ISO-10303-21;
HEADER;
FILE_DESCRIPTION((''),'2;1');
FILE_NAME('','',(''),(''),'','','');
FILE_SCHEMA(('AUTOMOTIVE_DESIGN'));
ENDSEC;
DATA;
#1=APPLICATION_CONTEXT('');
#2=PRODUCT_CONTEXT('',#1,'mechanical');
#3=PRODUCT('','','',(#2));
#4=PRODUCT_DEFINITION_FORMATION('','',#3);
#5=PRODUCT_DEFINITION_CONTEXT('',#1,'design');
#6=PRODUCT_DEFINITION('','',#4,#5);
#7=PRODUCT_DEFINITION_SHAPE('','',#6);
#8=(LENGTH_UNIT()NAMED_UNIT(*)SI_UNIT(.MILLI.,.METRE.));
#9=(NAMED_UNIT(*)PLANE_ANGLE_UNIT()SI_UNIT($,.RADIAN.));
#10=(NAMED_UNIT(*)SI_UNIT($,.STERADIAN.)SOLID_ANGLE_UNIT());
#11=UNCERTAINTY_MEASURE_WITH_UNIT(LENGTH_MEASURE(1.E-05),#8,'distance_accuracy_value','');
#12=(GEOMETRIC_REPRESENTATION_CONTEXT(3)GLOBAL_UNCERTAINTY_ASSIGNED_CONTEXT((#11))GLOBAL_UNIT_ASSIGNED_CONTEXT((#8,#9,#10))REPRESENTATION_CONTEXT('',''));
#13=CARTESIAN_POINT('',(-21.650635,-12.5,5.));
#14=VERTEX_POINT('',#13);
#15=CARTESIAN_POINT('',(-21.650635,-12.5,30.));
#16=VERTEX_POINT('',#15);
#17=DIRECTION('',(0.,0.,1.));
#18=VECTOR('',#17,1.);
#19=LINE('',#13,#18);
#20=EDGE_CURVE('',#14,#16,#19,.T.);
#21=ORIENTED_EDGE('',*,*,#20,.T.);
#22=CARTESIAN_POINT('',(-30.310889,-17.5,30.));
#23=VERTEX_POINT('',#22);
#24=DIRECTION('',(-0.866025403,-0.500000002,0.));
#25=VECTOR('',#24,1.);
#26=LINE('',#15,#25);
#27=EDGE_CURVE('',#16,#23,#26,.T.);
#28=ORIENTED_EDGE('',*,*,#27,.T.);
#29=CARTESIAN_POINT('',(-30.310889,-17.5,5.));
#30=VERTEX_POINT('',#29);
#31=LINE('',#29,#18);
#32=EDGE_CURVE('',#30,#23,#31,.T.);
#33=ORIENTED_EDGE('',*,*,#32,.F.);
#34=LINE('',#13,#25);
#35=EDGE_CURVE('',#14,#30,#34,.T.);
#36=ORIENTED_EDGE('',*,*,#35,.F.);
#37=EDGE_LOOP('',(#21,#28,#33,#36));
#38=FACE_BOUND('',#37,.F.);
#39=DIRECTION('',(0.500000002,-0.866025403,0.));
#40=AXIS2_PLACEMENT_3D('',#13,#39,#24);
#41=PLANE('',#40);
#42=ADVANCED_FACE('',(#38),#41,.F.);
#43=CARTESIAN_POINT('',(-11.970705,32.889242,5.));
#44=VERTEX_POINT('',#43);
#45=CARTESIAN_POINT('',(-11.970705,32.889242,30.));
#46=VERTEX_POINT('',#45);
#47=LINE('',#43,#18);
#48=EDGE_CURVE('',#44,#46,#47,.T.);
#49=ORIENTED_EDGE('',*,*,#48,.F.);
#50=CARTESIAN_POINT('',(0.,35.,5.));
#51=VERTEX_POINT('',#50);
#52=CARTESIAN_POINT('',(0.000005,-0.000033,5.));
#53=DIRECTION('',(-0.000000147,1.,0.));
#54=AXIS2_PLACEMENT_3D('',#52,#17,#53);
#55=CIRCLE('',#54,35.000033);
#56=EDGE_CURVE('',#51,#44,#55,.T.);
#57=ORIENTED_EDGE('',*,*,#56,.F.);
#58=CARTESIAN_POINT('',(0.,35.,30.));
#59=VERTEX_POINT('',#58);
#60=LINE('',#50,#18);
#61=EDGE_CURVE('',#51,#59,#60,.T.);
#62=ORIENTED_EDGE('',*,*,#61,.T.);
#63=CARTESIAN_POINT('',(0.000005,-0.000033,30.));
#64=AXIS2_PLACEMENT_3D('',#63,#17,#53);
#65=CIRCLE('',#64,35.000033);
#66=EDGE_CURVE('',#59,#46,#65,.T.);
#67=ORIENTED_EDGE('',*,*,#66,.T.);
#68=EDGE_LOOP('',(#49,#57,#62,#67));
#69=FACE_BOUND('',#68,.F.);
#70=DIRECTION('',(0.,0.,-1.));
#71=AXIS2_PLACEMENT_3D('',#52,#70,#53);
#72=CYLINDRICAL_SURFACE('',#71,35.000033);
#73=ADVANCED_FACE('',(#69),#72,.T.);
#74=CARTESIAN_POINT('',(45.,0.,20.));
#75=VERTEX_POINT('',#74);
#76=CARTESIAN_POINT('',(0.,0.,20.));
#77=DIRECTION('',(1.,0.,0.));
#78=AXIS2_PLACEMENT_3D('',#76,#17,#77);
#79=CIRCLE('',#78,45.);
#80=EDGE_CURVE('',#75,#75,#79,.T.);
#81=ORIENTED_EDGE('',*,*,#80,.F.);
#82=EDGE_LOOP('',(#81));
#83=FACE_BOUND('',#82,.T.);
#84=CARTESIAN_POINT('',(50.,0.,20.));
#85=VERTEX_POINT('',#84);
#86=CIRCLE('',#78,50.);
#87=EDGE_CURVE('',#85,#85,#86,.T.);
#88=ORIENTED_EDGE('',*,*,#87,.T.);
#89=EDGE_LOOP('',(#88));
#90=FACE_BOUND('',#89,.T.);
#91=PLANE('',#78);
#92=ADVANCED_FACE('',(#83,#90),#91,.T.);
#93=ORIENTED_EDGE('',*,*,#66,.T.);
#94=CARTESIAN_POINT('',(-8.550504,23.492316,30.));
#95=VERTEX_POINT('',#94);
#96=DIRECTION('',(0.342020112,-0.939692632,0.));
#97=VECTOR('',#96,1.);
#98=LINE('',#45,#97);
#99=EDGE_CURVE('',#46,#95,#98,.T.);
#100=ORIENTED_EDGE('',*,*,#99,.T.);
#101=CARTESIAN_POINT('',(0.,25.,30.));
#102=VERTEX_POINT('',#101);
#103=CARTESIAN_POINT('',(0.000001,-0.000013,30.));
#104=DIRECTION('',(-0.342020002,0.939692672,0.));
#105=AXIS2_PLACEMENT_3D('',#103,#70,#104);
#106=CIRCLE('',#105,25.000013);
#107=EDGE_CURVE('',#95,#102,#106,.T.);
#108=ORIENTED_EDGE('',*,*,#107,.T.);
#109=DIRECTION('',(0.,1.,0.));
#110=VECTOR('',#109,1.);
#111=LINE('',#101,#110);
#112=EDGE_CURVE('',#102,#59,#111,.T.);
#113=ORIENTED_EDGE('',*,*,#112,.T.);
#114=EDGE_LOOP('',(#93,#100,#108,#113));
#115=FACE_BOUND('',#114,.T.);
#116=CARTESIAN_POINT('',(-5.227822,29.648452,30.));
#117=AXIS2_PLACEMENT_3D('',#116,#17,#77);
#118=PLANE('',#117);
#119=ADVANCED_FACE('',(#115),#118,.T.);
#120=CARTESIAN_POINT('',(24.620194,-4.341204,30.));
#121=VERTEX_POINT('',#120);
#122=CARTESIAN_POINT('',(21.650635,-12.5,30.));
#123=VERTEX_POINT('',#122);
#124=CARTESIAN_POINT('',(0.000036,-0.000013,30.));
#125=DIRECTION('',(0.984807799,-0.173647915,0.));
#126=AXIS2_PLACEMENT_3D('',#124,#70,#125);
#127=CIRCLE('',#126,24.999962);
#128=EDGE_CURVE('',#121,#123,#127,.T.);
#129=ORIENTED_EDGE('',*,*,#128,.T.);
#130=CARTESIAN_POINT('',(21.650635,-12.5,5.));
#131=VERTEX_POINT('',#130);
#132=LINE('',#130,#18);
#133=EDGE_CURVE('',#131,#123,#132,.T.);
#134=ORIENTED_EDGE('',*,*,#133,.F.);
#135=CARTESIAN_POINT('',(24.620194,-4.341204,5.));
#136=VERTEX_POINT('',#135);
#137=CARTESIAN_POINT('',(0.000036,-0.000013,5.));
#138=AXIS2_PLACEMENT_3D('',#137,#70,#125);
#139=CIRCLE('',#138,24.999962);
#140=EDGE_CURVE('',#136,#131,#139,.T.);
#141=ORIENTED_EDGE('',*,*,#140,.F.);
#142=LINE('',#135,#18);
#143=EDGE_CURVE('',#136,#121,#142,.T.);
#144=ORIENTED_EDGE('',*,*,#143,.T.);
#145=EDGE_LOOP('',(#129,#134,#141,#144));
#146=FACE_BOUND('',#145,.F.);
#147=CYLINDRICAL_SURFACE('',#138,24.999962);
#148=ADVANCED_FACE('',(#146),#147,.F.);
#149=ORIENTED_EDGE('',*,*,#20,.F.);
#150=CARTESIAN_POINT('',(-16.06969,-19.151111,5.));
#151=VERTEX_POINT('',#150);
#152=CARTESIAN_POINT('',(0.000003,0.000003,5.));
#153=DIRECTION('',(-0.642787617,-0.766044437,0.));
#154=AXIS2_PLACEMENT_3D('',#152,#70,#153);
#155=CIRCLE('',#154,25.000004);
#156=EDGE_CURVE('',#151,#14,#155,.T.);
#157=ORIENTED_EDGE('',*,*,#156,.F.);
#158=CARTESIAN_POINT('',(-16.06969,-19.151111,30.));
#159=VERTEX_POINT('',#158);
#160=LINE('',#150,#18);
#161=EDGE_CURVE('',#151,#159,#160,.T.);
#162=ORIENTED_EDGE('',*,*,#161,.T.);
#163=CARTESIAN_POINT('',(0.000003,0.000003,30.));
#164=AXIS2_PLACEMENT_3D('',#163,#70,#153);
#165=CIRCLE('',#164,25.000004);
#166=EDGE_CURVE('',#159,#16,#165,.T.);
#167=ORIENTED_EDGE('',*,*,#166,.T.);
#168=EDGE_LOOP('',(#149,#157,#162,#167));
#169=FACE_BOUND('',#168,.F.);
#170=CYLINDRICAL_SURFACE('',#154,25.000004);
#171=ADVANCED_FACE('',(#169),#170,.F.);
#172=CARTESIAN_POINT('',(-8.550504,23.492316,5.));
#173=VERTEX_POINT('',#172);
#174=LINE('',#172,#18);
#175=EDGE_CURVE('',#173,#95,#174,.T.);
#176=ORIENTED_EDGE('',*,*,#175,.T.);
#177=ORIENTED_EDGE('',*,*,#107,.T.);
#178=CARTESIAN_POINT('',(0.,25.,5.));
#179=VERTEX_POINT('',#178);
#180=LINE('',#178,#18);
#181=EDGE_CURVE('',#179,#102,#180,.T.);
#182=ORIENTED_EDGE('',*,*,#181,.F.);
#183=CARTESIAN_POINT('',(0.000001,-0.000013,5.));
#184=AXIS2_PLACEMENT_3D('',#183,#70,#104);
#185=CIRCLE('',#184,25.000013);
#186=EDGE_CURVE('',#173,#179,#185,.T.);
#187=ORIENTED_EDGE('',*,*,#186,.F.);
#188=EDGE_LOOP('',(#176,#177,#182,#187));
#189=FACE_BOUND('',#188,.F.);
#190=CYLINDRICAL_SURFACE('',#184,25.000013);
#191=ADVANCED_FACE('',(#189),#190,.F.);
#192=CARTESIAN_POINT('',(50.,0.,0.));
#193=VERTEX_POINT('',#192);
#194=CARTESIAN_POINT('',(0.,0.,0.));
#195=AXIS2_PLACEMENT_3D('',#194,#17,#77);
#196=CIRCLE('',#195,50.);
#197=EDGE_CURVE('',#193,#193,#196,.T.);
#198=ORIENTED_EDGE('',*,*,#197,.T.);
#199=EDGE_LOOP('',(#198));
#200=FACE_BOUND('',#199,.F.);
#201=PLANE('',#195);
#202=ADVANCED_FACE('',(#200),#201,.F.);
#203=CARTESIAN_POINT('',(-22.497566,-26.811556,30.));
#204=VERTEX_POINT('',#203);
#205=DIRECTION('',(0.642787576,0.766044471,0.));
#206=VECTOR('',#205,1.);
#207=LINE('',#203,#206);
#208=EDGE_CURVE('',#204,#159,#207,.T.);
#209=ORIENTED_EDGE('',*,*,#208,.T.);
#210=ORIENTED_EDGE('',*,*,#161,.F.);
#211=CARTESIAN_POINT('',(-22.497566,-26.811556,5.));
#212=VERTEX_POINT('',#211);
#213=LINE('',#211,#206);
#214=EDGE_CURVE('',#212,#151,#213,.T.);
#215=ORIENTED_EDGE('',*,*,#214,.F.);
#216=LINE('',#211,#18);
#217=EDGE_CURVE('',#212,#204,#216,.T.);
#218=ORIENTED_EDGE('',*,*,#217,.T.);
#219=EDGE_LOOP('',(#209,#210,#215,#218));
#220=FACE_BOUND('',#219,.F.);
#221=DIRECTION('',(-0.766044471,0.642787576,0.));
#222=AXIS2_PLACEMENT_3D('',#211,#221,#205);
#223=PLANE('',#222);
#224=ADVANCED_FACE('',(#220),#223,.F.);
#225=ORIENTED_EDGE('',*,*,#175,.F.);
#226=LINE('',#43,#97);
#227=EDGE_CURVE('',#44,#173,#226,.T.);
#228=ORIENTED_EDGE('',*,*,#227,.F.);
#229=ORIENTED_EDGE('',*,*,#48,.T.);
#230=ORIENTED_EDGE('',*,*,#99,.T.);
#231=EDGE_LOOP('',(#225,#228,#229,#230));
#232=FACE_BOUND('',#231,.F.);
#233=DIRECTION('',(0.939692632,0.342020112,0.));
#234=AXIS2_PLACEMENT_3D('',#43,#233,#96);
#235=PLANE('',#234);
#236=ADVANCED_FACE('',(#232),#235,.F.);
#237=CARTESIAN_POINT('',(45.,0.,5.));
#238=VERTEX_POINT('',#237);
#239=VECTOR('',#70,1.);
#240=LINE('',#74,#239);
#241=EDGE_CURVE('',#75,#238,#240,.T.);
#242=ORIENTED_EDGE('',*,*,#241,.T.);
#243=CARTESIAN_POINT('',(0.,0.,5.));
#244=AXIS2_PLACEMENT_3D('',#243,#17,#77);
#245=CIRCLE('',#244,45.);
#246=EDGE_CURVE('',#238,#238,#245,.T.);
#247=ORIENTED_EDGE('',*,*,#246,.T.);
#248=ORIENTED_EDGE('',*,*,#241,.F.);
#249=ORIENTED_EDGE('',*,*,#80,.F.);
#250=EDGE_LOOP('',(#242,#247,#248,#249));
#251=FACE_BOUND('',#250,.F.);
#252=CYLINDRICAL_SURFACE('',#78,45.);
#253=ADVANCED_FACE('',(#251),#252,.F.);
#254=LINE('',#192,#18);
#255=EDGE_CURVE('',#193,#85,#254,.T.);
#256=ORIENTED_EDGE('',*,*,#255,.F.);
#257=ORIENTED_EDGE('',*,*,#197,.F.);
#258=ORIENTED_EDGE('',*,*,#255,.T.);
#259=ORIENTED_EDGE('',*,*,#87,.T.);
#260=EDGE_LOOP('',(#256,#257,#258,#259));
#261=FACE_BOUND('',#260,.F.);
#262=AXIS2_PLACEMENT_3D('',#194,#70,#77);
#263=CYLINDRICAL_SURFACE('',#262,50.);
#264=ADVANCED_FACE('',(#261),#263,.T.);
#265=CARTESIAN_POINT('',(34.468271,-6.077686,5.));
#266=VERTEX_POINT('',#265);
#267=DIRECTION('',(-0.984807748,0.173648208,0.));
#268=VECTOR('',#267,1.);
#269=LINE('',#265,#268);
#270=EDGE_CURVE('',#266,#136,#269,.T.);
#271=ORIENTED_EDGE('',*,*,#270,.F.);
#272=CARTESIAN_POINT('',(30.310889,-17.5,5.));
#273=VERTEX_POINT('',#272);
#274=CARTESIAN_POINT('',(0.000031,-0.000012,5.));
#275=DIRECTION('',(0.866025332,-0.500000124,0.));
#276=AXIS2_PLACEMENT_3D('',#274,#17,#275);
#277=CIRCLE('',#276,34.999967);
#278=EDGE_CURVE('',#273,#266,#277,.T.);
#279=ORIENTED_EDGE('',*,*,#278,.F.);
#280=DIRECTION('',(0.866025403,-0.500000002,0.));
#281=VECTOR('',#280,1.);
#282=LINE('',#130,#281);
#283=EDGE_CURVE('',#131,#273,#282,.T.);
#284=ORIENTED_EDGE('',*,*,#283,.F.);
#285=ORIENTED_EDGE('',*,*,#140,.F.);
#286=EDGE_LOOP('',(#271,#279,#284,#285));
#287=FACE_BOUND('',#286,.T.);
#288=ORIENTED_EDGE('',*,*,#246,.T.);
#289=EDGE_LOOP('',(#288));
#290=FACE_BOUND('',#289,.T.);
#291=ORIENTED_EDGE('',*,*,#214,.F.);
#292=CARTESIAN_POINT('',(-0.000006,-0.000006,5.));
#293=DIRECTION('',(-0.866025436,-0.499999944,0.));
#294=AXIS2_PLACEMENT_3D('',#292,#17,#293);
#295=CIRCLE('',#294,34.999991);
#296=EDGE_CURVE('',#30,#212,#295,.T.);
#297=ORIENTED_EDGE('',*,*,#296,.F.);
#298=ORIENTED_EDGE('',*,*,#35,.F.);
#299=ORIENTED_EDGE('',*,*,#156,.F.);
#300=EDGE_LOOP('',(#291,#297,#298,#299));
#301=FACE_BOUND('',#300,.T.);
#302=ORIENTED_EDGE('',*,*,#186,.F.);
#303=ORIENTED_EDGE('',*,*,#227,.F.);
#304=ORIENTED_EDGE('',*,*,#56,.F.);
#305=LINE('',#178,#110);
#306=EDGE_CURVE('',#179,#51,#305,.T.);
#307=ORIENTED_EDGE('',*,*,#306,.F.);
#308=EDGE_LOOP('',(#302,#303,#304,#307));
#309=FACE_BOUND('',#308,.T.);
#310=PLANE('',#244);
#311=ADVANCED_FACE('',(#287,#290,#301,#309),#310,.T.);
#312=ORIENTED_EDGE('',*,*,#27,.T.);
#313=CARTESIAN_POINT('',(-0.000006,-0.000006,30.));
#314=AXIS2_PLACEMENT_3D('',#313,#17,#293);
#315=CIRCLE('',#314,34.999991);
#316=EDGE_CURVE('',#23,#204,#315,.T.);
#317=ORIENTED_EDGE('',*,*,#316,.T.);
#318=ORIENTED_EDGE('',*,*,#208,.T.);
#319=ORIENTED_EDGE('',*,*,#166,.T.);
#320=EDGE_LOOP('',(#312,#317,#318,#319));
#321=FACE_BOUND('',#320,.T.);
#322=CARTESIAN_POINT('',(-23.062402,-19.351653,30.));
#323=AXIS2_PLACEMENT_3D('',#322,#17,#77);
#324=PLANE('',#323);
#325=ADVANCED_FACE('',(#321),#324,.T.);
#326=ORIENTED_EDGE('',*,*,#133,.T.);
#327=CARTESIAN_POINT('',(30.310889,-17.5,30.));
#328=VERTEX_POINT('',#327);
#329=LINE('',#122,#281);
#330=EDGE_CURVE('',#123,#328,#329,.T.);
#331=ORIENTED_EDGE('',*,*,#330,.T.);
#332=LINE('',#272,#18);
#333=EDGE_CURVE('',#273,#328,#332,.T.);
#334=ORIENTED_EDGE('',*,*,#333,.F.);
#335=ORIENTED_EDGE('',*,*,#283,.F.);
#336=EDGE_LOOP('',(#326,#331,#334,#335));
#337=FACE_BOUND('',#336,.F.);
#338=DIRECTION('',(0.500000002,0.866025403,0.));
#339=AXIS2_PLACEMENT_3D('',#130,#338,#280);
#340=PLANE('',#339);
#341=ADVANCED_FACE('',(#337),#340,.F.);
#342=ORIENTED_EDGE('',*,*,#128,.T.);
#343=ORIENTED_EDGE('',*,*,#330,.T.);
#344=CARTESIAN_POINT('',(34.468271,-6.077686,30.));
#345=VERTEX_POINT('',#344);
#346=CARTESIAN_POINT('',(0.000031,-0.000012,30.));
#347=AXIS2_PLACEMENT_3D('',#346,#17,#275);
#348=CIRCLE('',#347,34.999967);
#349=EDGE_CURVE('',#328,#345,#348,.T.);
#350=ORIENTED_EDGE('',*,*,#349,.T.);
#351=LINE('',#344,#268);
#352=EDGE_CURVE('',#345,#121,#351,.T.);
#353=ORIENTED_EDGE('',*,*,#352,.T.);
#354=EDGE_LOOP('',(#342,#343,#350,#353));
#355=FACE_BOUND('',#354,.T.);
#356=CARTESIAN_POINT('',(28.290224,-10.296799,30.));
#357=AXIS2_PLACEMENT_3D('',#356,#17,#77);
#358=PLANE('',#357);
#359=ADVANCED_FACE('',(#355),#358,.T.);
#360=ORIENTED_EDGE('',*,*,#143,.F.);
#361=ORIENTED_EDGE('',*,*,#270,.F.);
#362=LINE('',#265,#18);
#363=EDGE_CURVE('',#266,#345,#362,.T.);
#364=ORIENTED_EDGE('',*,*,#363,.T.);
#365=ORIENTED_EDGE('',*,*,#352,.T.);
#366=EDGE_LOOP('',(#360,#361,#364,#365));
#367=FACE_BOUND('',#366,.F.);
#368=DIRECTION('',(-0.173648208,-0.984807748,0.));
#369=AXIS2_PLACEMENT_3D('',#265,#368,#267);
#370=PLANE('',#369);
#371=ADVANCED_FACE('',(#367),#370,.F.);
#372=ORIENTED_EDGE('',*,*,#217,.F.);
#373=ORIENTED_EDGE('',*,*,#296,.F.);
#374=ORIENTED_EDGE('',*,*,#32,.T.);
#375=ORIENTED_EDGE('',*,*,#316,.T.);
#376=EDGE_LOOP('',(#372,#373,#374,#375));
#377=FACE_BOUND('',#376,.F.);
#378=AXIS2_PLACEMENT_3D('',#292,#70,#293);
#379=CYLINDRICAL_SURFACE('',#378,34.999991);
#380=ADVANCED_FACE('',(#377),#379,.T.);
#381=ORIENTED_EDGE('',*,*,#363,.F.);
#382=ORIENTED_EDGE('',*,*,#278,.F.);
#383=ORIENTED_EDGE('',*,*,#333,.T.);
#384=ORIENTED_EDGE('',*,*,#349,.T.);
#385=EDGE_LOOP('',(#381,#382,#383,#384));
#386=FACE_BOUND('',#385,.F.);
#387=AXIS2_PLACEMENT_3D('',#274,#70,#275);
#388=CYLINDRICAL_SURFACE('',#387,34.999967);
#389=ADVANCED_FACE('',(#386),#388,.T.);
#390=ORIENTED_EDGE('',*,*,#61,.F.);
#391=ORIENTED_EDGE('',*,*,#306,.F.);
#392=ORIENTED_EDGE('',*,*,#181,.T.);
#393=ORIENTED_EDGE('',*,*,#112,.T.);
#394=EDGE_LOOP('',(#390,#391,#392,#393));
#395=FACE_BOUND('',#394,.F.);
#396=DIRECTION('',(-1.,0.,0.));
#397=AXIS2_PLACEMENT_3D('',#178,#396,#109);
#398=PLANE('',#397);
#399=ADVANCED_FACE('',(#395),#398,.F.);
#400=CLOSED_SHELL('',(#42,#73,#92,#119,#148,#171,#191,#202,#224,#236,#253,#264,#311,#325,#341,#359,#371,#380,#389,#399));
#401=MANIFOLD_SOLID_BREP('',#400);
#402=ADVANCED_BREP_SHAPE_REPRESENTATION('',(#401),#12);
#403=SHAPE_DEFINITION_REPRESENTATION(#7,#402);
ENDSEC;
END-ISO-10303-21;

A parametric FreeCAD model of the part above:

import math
import FreeCAD as App
import Part
import Sketcher

V = App.Vector

doc = App.newDocument("Part")
body = doc.addObject("PartDesign::Body", "Body")

# Sketch on XY plane
sketch1 = body.newObject("Sketcher::SketchObject", "Sketch")
sketch1.AttachmentSupport = (doc.getObject("XY_Plane"), [""])
sketch1.MapMode = "FlatFace"
sketch1.addGeometry(Part.Circle(V(0, 0, 0), V(0, 0, 1), 50), False)
sketch1.addConstraint(Sketcher.Constraint("Coincident", 0, 3, -1, 1))
sketch1.addConstraint(Sketcher.Constraint("Diameter", 0, 100.0))
pad1 = body.newObject("PartDesign::Pad", "Pad")
pad1.Profile = sketch1
pad1.Length = 20

# Sketch on XY plane
sketch2 = body.newObject("Sketcher::SketchObject", "Sketch001")
sketch2.AttachmentSupport = (doc.getObject("XY_Plane"), [""])
sketch2.MapMode = "FlatFace"
sketch2.AttachmentOffset = App.Placement(V(0, 0, 20), App.Rotation())
sketch2.addGeometry(Part.Circle(V(0, 0, 0), V(0, 0, 1), 45), False)
sketch2.addConstraint(Sketcher.Constraint("Coincident", 0, 3, -1, 1))
sketch2.addConstraint(Sketcher.Constraint("Diameter", 0, 90.0))
pocket1 = body.newObject("PartDesign::Pocket", "Pocket")
pocket1.Profile = sketch2
pocket1.Length = 15

# Sketch on XY plane
sketch3 = body.newObject("Sketcher::SketchObject", "Sketch002")
sketch3.AttachmentSupport = (doc.getObject("XY_Plane"), [""])
sketch3.MapMode = "FlatFace"
sketch3.AttachmentOffset = App.Placement(V(0, 0, 5), App.Rotation())
sketch3.addGeometry(Part.ArcOfCircle(Part.Circle(V(0.000005, -0.000033, 0), V(0, 0, 1), 35.000033), math.radians(90.000008), math.radians(109.999989)), False)
sketch3.addGeometry(Part.LineSegment(V(-11.970705, 32.889242, 0), V(-8.550504, 23.492316, 0)), False)
sketch3.addGeometry(Part.ArcOfCircle(Part.Circle(V(0.000001, -0.000013, 0), V(0, 0, 1), 25.000013), math.radians(90.000001), math.radians(109.999991)), False)
sketch3.addGeometry(Part.LineSegment(V(0, 25, 0), V(0, 35, 0)), False)
sketch3.addGeometry(Part.ArcOfCircle(Part.Circle(V(-0.000006, -0.000006, 0), V(0, 0, 1), 34.999991), math.radians(-150.000004), math.radians(-129.999998)), False)
sketch3.addGeometry(Part.LineSegment(V(-22.497566, -26.811556, 0), V(-16.06969, -19.151111, 0)), False)
sketch3.addGeometry(Part.ArcOfCircle(Part.Circle(V(0.000003, 0.000003, 0), V(0, 0, 1), 25.000004), math.radians(-149.999997), math.radians(-130.000001)), False)
sketch3.addGeometry(Part.LineSegment(V(-21.650635, -12.5, 0), V(-30.310889, -17.5, 0)), False)
sketch3.addGeometry(Part.ArcOfCircle(Part.Circle(V(0.000031, -0.000012, 0), V(0, 0, 1), 34.999967), math.radians(-30.000008), math.radians(-9.999989)), False)
sketch3.addGeometry(Part.LineSegment(V(34.468271, -6.077686, 0), V(24.620194, -4.341204, 0)), False)
sketch3.addGeometry(Part.ArcOfCircle(Part.Circle(V(0.000036, -0.000013, 0), V(0, 0, 1), 24.999962), math.radians(-30.000017), math.radians(-9.999985)), False)
sketch3.addGeometry(Part.LineSegment(V(21.650635, -12.5, 0), V(30.310889, -17.5, 0)), False)
sketch3.addConstraint(Sketcher.Constraint("Coincident", 0, 2, 1, 1))
sketch3.addConstraint(Sketcher.Constraint("Coincident", 1, 2, 2, 2))
sketch3.addConstraint(Sketcher.Constraint("Coincident", 2, 1, 3, 1))
sketch3.addConstraint(Sketcher.Constraint("Coincident", 3, 2, 0, 1))
sketch3.addConstraint(Sketcher.Constraint("Coincident", 4, 2, 5, 1))
sketch3.addConstraint(Sketcher.Constraint("Coincident", 5, 2, 6, 2))
sketch3.addConstraint(Sketcher.Constraint("Coincident", 6, 1, 7, 1))
sketch3.addConstraint(Sketcher.Constraint("Coincident", 7, 2, 4, 1))
sketch3.addConstraint(Sketcher.Constraint("Coincident", 8, 2, 9, 1))
sketch3.addConstraint(Sketcher.Constraint("Coincident", 9, 2, 10, 2))
sketch3.addConstraint(Sketcher.Constraint("Coincident", 10, 1, 11, 1))
sketch3.addConstraint(Sketcher.Constraint("Coincident", 11, 2, 8, 1))
sketch3.addConstraint(Sketcher.Constraint("Vertical", 3))
sketch3.addConstraint(Sketcher.Constraint("Coincident", 4, 3, -1, 1))
sketch3.addConstraint(Sketcher.Constraint("Coincident", 6, 3, -1, 1))
sketch3.addConstraint(Sketcher.Constraint("Coincident", 4, 3, 2, 3))
sketch3.addConstraint(Sketcher.Constraint("Coincident", 10, 3, 8, 3))
sketch3.addConstraint(Sketcher.Constraint("PointOnObject", 2, 1, -2))
sketch3.addConstraint(Sketcher.Constraint("DistanceY", 3, 1, 3, 2, 10.0))
sketch3.addConstraint(Sketcher.Constraint("Distance", 1, 10.0))
sketch3.addConstraint(Sketcher.Constraint("Distance", 5, 10.0))
sketch3.addConstraint(Sketcher.Constraint("Distance", 9, 10.0))
sketch3.addConstraint(Sketcher.Constraint("DistanceY", -1, 1, 2, 1, 25.0))
sketch3.addConstraint(Sketcher.Constraint("DistanceY", 7, 2, 6, 1, 5.0))
sketch3.addConstraint(Sketcher.Constraint("DistanceY", 11, 2, 10, 1, 5.0))
sketch3.addConstraint(Sketcher.Constraint("DistanceY", 6, 1, -1, 1, 12.5))
sketch3.addConstraint(Sketcher.Constraint("DistanceY", 10, 1, -1, 1, 12.5))
sketch3.addConstraint(Sketcher.Constraint("Radius", 4, 34.999991))
sketch3.addConstraint(Sketcher.Constraint("Radius", 10, 24.999962))
sketch3.addConstraint(Sketcher.Constraint("Radius", 0, 35.000033))
sketch3.addConstraint(Sketcher.Constraint("DistanceX", 0, 2, 4, 3, 11.970699))
sketch3.addConstraint(Sketcher.Constraint("DistanceX", 0, 2, 1, 2, 3.420201))
sketch3.addConstraint(Sketcher.Constraint("DistanceX", 7, 2, 5, 2, 14.241199))
sketch3.addConstraint(Sketcher.Constraint("DistanceX", 10, 3, 10, 1, 21.650599))
sketch3.addConstraint(Sketcher.Constraint("DistanceX", -1, 1, 8, 2, 34.468271))
sketch3.addConstraint(Sketcher.Constraint("DistanceX", -1, 1, 11, 2, 30.310889))
sketch3.addConstraint(Sketcher.Constraint("DistanceX", 4, 2, 0, 3, 22.497571))
sketch3.addConstraint(Sketcher.Constraint("DistanceY", 9, 2, 10, 3, 4.341191))
pad2 = body.newObject("PartDesign::Pad", "Pad001")
pad2.Profile = sketch3
pad2.Length = 25

doc.recompute()
